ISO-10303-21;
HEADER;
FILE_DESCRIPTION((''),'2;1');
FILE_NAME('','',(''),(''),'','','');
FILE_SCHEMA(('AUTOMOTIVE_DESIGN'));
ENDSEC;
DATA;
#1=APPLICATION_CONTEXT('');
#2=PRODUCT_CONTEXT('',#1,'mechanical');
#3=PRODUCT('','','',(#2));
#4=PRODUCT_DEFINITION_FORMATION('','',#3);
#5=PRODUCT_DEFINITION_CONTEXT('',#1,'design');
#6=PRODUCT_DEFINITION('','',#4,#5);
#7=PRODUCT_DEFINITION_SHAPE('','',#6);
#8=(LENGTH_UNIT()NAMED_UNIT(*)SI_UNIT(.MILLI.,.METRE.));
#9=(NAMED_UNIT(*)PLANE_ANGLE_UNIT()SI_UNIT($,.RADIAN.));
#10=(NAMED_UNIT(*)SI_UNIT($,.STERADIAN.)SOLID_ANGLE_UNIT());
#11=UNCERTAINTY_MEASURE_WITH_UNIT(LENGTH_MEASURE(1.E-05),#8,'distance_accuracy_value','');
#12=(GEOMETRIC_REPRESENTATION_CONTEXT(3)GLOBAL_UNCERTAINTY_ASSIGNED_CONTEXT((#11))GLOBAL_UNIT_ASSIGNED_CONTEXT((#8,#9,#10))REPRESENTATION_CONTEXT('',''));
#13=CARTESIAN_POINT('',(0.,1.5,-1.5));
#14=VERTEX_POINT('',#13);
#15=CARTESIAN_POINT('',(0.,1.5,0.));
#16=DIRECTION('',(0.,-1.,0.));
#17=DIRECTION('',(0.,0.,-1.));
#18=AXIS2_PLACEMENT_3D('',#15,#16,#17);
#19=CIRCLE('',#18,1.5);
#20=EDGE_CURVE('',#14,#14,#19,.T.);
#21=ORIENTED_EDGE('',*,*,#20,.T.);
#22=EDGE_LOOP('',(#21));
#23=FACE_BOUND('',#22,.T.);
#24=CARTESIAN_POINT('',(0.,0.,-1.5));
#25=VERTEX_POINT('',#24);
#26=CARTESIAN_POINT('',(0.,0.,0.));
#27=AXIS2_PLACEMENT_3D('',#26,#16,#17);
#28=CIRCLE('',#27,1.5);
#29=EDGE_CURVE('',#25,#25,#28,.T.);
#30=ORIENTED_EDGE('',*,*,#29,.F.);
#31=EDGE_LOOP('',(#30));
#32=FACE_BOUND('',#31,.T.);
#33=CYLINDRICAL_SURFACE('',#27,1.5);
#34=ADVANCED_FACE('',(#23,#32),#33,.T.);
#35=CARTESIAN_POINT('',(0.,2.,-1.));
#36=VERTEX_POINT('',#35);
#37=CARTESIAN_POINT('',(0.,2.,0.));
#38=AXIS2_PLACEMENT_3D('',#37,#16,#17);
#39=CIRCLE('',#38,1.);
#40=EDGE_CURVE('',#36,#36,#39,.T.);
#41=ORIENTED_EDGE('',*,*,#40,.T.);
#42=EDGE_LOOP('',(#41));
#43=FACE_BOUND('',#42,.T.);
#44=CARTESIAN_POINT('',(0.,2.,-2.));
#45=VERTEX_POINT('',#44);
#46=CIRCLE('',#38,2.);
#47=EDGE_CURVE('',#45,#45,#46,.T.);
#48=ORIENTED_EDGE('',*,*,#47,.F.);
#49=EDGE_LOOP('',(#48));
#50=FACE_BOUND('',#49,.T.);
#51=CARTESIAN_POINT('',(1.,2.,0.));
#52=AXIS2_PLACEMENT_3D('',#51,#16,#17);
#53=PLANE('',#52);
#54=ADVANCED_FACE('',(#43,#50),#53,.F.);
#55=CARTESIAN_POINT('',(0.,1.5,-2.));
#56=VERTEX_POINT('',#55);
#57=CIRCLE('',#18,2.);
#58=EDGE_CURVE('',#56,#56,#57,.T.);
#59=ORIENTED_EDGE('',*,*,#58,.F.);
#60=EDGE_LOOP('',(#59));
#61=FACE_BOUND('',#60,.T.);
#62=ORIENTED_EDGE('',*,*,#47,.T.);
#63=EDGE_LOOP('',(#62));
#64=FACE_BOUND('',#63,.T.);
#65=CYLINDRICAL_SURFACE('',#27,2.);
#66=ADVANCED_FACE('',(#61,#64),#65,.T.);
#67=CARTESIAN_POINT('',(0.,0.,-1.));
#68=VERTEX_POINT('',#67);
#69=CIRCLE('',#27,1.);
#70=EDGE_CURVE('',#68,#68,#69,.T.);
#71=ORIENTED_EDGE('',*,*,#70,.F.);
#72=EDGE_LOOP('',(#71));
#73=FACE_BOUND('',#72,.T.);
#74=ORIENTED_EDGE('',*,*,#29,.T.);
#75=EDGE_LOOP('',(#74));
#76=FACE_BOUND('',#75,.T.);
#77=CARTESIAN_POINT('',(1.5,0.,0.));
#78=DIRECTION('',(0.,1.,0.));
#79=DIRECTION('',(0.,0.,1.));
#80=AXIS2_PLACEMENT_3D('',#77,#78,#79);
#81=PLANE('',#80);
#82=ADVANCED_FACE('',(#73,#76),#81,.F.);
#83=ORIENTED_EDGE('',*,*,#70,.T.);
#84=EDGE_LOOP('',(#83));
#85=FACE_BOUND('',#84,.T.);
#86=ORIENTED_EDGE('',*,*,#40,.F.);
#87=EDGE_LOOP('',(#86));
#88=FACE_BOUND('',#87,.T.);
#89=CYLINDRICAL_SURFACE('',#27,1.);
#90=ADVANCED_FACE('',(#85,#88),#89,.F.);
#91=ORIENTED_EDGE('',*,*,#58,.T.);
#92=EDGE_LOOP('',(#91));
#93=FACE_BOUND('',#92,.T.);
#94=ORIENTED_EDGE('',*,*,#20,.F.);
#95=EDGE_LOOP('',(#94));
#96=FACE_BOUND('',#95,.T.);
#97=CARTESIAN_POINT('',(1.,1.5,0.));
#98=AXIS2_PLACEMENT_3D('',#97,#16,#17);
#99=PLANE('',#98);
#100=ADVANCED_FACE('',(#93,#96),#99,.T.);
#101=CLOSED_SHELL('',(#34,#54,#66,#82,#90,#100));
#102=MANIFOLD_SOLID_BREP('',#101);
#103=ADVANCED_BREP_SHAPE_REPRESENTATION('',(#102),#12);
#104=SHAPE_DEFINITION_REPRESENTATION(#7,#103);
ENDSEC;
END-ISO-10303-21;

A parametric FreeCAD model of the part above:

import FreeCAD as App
import Part
import Sketcher
from FreeCAD import Vector
Q = App.Units.Quantity


def add_polygon(sketch, points):
    """Adds a closed chain of lines whose ends are joined by coincident constraints."""
    first, n = sketch.GeometryCount, len(points)
    for a, b in zip(points, points[1:] + points[:1]):
        sketch.addGeometry(Part.LineSegment(App.Vector(*a, 0), App.Vector(*b, 0)), False)
    for i in range(n):
        sketch.addConstraint(Sketcher.Constraint("Coincident", first + i, 2, first + (i + 1) % n, 1))

doc = App.newDocument("Part")
body = doc.addObject("PartDesign::Body", "Body")

sketch1 = body.newObject("Sketcher::SketchObject", "Sketch")
sketch1.AttachmentSupport = (doc.getObject("XY_Plane"), [""])
sketch1.MapMode = "FlatFace"
add_polygon(sketch1, [(1, 2), (1, 0), (1.5, 0), (1.5, 1.5), (2, 1.5), (2, 2)])
sketch1.addConstraint(Sketcher.Constraint("Vertical", 0))
sketch1.addConstraint(Sketcher.Constraint("Horizontal", 1))
sketch1.addConstraint(Sketcher.Constraint("Vertical", 2))
sketch1.addConstraint(Sketcher.Constraint("Horizontal", 3))
sketch1.addConstraint(Sketcher.Constraint("Vertical", 4))
sketch1.addConstraint(Sketcher.Constraint("Horizontal", 5))
sketch1.addConstraint(Sketcher.Constraint("PointOnObject", 0, 2, -1))
sketch1.addConstraint(Sketcher.Constraint("Equal", 1, 3))
sketch1.addConstraint(Sketcher.Constraint("Equal", 3, 4))
sketch1.addConstraint(Sketcher.Constraint("DistanceX", 5, 2, 5, 1, Q("1 mm")))
sketch1.addConstraint(Sketcher.Constraint("DistanceY", 0, 2, 0, 1, Q("2 mm")))
sketch1.addConstraint(Sketcher.Constraint("DistanceX", -1, 1, 0, 2, Q("1 mm")))
revolution = body.newObject("PartDesign::Revolution", "Revolution")
revolution.Profile = sketch1
revolution.ReferenceAxis = (sketch1, ["V_Axis"])
revolution.Angle = 360

doc.recompute()
